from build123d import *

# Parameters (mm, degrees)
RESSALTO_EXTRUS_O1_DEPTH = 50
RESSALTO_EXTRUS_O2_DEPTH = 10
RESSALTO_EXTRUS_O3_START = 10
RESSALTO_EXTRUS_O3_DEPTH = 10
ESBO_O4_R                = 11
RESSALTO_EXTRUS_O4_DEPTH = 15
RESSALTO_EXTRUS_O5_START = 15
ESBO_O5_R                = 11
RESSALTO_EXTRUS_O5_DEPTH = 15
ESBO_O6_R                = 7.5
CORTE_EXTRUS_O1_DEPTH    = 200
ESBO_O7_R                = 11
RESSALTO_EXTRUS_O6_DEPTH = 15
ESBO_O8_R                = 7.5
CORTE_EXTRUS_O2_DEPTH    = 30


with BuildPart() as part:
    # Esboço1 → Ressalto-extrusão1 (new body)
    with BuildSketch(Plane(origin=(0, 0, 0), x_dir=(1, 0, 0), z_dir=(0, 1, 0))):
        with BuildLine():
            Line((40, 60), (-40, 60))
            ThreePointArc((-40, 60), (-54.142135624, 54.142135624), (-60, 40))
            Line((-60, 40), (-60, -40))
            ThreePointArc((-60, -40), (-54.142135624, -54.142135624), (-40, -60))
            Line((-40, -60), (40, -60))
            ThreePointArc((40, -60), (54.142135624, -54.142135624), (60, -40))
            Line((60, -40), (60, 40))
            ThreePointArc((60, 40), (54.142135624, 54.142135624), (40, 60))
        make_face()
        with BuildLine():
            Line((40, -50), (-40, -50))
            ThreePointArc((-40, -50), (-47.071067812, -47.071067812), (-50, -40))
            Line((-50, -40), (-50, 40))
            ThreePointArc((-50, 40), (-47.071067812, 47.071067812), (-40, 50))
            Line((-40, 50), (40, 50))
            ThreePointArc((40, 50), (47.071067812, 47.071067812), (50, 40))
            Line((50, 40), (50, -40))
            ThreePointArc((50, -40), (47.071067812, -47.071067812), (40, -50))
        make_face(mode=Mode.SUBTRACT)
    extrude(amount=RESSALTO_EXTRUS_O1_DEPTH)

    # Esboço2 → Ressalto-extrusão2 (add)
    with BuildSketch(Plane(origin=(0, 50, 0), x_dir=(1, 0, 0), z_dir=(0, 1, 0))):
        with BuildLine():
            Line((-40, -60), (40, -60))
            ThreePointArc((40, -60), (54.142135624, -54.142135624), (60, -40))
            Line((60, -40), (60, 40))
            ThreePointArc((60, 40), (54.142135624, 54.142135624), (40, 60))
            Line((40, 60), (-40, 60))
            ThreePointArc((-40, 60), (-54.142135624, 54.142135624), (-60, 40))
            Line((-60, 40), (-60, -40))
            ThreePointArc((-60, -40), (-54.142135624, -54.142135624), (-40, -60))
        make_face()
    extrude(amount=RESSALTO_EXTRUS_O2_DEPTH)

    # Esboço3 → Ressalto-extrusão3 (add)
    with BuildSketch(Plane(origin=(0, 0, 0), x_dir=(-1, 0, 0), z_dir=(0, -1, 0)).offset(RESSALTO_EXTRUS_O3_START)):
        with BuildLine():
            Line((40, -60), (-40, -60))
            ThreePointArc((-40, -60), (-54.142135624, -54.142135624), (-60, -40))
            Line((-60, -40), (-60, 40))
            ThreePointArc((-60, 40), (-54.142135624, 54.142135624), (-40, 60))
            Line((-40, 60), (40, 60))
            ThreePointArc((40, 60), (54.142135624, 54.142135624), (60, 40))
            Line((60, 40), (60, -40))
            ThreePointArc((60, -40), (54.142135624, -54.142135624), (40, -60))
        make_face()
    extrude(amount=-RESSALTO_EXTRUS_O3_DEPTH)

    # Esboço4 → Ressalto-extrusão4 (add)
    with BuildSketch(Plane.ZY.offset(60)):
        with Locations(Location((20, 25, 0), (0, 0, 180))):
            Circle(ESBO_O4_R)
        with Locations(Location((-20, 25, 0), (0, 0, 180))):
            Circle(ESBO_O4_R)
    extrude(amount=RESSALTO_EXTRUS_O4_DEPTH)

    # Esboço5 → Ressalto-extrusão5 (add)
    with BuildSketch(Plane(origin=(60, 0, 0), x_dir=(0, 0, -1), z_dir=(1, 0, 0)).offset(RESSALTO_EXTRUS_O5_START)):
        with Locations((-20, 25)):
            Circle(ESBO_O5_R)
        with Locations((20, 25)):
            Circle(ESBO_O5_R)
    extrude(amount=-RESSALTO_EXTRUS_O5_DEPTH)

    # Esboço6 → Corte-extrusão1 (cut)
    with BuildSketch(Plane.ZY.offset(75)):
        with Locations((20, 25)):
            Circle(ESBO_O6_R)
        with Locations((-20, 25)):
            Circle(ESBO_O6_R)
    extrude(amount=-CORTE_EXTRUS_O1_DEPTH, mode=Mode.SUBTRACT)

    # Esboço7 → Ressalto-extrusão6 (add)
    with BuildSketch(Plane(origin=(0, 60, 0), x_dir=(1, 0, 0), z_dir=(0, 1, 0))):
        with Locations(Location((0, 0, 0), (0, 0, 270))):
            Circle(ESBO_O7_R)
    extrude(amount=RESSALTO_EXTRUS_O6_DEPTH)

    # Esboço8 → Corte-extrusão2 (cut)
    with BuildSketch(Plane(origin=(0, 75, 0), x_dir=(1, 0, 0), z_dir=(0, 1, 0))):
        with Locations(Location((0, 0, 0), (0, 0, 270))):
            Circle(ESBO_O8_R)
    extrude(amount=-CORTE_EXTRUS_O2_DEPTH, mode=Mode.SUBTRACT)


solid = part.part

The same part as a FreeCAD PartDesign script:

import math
import FreeCAD as App
import Part
import Sketcher
from FreeCAD import Vector

doc = App.newDocument("Part")
params = doc.addObject("Spreadsheet::Sheet", "Params")
for row, (alias, value) in enumerate([
    ("sketch1_radius", "20 mm"),
    ("sketch1_radius2", "10 mm"),
    ("sketch1_width", "80 mm"),
    ("pad1_length", "50 mm"),
    ("sketch2_radius", "20 mm"),
    ("sketch2_width", "80 mm"),
    ("pad2_length", "10 mm"),
    ("sketch3_radius", "20 mm"),
    ("sketch3_width", "80 mm"),
    ("pad3_length", "10 mm"),
    ("sketch4_diameter", "22 mm"),
    ("pad4_length", "15 mm"),
    ("sketch5_diameter", "22 mm"),
    ("pad5_length", "15 mm"),
    ("sketch6_diameter", "15 mm"),
    ("pocket1_length", "200 mm"),
    ("sketch7_diameter", "22 mm"),
    ("pad6_length", "15 mm"),
    ("sketch8_diameter", "15 mm"),
    ("pocket2_length", "30 mm"),
], start=1):
    params.set(f"A{row}", alias)
    params.set(f"B{row}", "=" + value)
    params.setAlias(f"B{row}", alias)

body = doc.addObject("PartDesign::Body", "Body")

# Sketch on XZ plane
sketch1 = body.newObject("Sketcher::SketchObject", "Sketch")
sketch1.AttachmentSupport = (doc.getObject("XZ_Plane"), [""])
sketch1.MapMode = "FlatFace"
sketch1.addGeometry([
    Part.LineSegment(Vector(40, -60, 0), Vector(-40, -60, 0)),  # 0
    Part.ArcOfCircle(Part.Circle(Vector(-40, -40, 0), Vector(0, 0, 1), 20), math.radians(180), math.radians(270)),  # 1
    Part.LineSegment(Vector(-60, -40, 0), Vector(-60, 40, 0)),  # 2
    Part.ArcOfCircle(Part.Circle(Vector(-40, 40, 0), Vector(0, 0, 1), 20), math.radians(90), math.radians(180)),  # 3
    Part.LineSegment(Vector(-40, 60, 0), Vector(40, 60, 0)),  # 4
    Part.ArcOfCircle(Part.Circle(Vector(40, 40, 0), Vector(0, 0, 1), 20), math.radians(0), math.radians(90)),  # 5
    Part.LineSegment(Vector(60, 40, 0), Vector(60, -40, 0)),  # 6
    Part.ArcOfCircle(Part.Circle(Vector(40, -40, 0), Vector(0, 0, 1), 20), math.radians(-90), math.radians(0)),  # 7
    Part.ArcOfCircle(Part.Circle(Vector(40, 40, 0), Vector(0, 0, 1), 10), math.radians(0), math.radians(90)),  # 8
    Part.LineSegment(Vector(40, 50, 0), Vector(-40, 50, 0)),  # 9
    Part.ArcOfCircle(Part.Circle(Vector(-40, 40, 0), Vector(0, 0, 1), 10), math.radians(90), math.radians(180)),  # 10
    Part.LineSegment(Vector(-50, 40, 0), Vector(-50, -40, 0)),  # 11
    Part.ArcOfCircle(Part.Circle(Vector(-40, -40, 0), Vector(0, 0, 1), 10), math.radians(180), math.radians(270)),  # 12
    Part.LineSegment(Vector(-40, -50, 0), Vector(40, -50, 0)),  # 13
    Part.ArcOfCircle(Part.Circle(Vector(40, -40, 0), Vector(0, 0, 1), 10), math.radians(-90), math.radians(0)),  # 14
    Part.LineSegment(Vector(50, -40, 0), Vector(50, 40, 0)),  # 15
], False)
sketch1.addConstraint([
    Sketcher.Constraint("Tangent", 0, 2, 1, 2),
    Sketcher.Constraint("Tangent", 1, 1, 2, 1),
    Sketcher.Constraint("Tangent", 2, 2, 3, 2),
    Sketcher.Constraint("Tangent", 3, 1, 4, 1),
    Sketcher.Constraint("Tangent", 4, 2, 5, 2),
    Sketcher.Constraint("Tangent", 5, 1, 6, 1),
    Sketcher.Constraint("Tangent", 6, 2, 7, 2),
    Sketcher.Constraint("Tangent", 7, 1, 0, 1),
    Sketcher.Constraint("Tangent", 8, 2, 9, 1),
    Sketcher.Constraint("Tangent", 9, 2, 10, 1),
    Sketcher.Constraint("Tangent", 10, 2, 11, 1),
    Sketcher.Constraint("Tangent", 11, 2, 12, 1),
    Sketcher.Constraint("Tangent", 12, 2, 13, 1),
    Sketcher.Constraint("Tangent", 13, 2, 14, 1),
    Sketcher.Constraint("Tangent", 14, 2, 15, 1),
    Sketcher.Constraint("Tangent", 15, 2, 8, 1),
    Sketcher.Constraint("Horizontal", 0),
    Sketcher.Constraint("Vertical", 2),
    Sketcher.Constraint("Horizontal", 4),
    Sketcher.Constraint("Vertical", 6),
    Sketcher.Constraint("Horizontal", 9),
    Sketcher.Constraint("Vertical", 11),
    Sketcher.Constraint("Horizontal", 13),
    Sketcher.Constraint("Vertical", 15),
    Sketcher.Constraint("Coincident", 8, 3, 5, 3),
    Sketcher.Constraint("Coincident", 10, 3, 3, 3),
    Sketcher.Constraint("Coincident", 12, 3, 1, 3),
    Sketcher.Constraint("Equal", 1, 3),
    Sketcher.Constraint("Equal", 3, 5),
    Sketcher.Constraint("Equal", 5, 7),
    Sketcher.Constraint("Equal", 12, 14),
    Sketcher.Constraint("Symmetric", 1, 3, 5, 3, -1, 1),
    Sketcher.Constraint("Equal", 13, 2),
    Sketcher.Constraint("Radius", 1, 20.0),
    Sketcher.Constraint("Radius", 8, 10.0),
    Sketcher.Constraint("DistanceX", 0, 2, 0, 1, 80.0),
])
sketch1.setExpression("Constraints[33]", "Params.sketch1_radius")
sketch1.setExpression("Constraints[34]", "Params.sketch1_radius2")
sketch1.setExpression("Constraints[35]", "Params.sketch1_width")
pad1 = body.newObject("PartDesign::Pad", "Pad")
pad1.Profile = sketch1
pad1.setExpression("Length", "Params.pad1_length")
pad1.Reversed = True

# Sketch on XZ plane
sketch2 = body.newObject("Sketcher::SketchObject", "Sketch001")
sketch2.AttachmentSupport = (doc.getObject("XZ_Plane"), [""])
sketch2.MapMode = "FlatFace"
sketch2.AttachmentOffset = App.Placement(Vector(0, 0, -50), App.Rotation())
sketch2.addGeometry([
    Part.LineSegment(Vector(-40, 60, 0), Vector(40, 60, 0)),  # 0
    Part.ArcOfCircle(Part.Circle(Vector(40, 40, 0), Vector(0, 0, 1), 20), math.radians(0), math.radians(90)),  # 1
    Part.LineSegment(Vector(60, 40, 0), Vector(60, -40, 0)),  # 2
    Part.ArcOfCircle(Part.Circle(Vector(40, -40, 0), Vector(0, 0, 1), 20), math.radians(-90), math.radians(0)),  # 3
    Part.LineSegment(Vector(40, -60, 0), Vector(-40, -60, 0)),  # 4
    Part.ArcOfCircle(Part.Circle(Vector(-40, -40, 0), Vector(0, 0, 1), 20), math.radians(180), math.radians(270)),  # 5
    Part.LineSegment(Vector(-60, -40, 0), Vector(-60, 40, 0)),  # 6
    Part.ArcOfCircle(Part.Circle(Vector(-40, 40, 0), Vector(0, 0, 1), 20), math.radians(90), math.radians(180)),  # 7
], False)
sketch2.addConstraint([
    Sketcher.Constraint("Tangent", 0, 2, 1, 2),
    Sketcher.Constraint("Tangent", 1, 1, 2, 1),
    Sketcher.Constraint("Tangent", 2, 2, 3, 2),
    Sketcher.Constraint("Tangent", 3, 1, 4, 1),
    Sketcher.Constraint("Tangent", 4, 2, 5, 2),
    Sketcher.Constraint("Tangent", 5, 1, 6, 1),
    Sketcher.Constraint("Tangent", 6, 2, 7, 2),
    Sketcher.Constraint("Tangent", 7, 1, 0, 1),
    Sketcher.Constraint("Horizontal", 0),
    Sketcher.Constraint("Vertical", 2),
    Sketcher.Constraint("Horizontal", 4),
    Sketcher.Constraint("Vertical", 6),
    Sketcher.Constraint("Equal", 1, 3),
    Sketcher.Constraint("Equal", 3, 5),
    Sketcher.Constraint("Equal", 5, 7),
    Sketcher.Constraint("Symmetric", 1, 3, 5, 3, -1, 1),
    Sketcher.Constraint("Equal", 4, 2),
    Sketcher.Constraint("Radius", 1, 20.0),
    Sketcher.Constraint("DistanceX", 0, 1, 0, 2, 80.0),
])
sketch2.setExpression("Constraints[17]", "Params.sketch2_radius")
sketch2.setExpression("Constraints[18]", "Params.sketch2_width")
pad2 = body.newObject("PartDesign::Pad", "Pad001")
pad2.Profile = sketch2
pad2.setExpression("Length", "Params.pad2_length")
pad2.Reversed = True

# Sketch on XZ plane
sketch3 = body.newObject("Sketcher::SketchObject", "Sketch002")
sketch3.AttachmentSupport = (doc.getObject("XZ_Plane"), [""])
sketch3.MapMode = "FlatFace"
sketch3.AttachmentOffset = App.Placement(Vector(0, 0, 10), App.Rotation())
sketch3.addGeometry([
    Part.LineSegment(Vector(40, 60, 0), Vector(-40, 60, 0)),  # 0
    Part.ArcOfCircle(Part.Circle(Vector(-40, 40, 0), Vector(0, 0, 1), 20), math.radians(90), math.radians(180)),  # 1
    Part.LineSegment(Vector(-60, 40, 0), Vector(-60, -40, 0)),  # 2
    Part.ArcOfCircle(Part.Circle(Vector(-40, -40, 0), Vector(0, 0, 1), 20), math.radians(180), math.radians(270)),  # 3
    Part.LineSegment(Vector(-40, -60, 0), Vector(40, -60, 0)),  # 4
    Part.ArcOfCircle(Part.Circle(Vector(40, -40, 0), Vector(0, 0, 1), 20), math.radians(-90), math.radians(0)),  # 5
    Part.LineSegment(Vector(60, -40, 0), Vector(60, 40, 0)),  # 6
    Part.ArcOfCircle(Part.Circle(Vector(40, 40, 0), Vector(0, 0, 1), 20), math.radians(0), math.radians(90)),  # 7
], False)
sketch3.addConstraint([
    Sketcher.Constraint("Tangent", 0, 2, 1, 1),
    Sketcher.Constraint("Tangent", 1, 2, 2, 1),
    Sketcher.Constraint("Tangent", 2, 2, 3, 1),
    Sketcher.Constraint("Tangent", 3, 2, 4, 1),
    Sketcher.Constraint("Tangent", 4, 2, 5, 1),
    Sketcher.Constraint("Tangent", 5, 2, 6, 1),
    Sketcher.Constraint("Tangent", 6, 2, 7, 1),
    Sketcher.Constraint("Tangent", 7, 2, 0, 1),
    Sketcher.Constraint("Horizontal", 0),
    Sketcher.Constraint("Vertical", 2),
    Sketcher.Constraint("Horizontal", 4),
    Sketcher.Constraint("Vertical", 6),
    Sketcher.Constraint("Equal", 1, 3),
    Sketcher.Constraint("Equal", 3, 5),
    Sketcher.Constraint("Equal", 5, 7),
    Sketcher.Constraint("Symmetric", 1, 3, 5, 3, -1, 1),
    Sketcher.Constraint("Equal", 4, 2),
    Sketcher.Constraint("Radius", 1, 20.0),
    Sketcher.Constraint("DistanceX", 0, 2, 0, 1, 80.0),
])
sketch3.setExpression("Constraints[17]", "Params.sketch3_radius")
sketch3.setExpression("Constraints[18]", "Params.sketch3_width")
pad3 = body.newObject("PartDesign::Pad", "Pad002")
pad3.Profile = sketch3
pad3.setExpression("Length", "Params.pad3_length")
pad3.Reversed = True

# Sketch on YZ plane
sketch4 = body.newObject("Sketcher::SketchObject", "Sketch003")
sketch4.AttachmentSupport = (doc.getObject("YZ_Plane"), [""])
sketch4.MapMode = "FlatFace"
sketch4.AttachmentOffset = App.Placement(Vector(0, 0, -60), App.Rotation())
sketch4.addGeometry([
    Part.Circle(Vector(25, 20, 0), Vector(0, 0, 1), 11),
    Part.Circle(Vector(25, -20, 0), Vector(0, 0, 1), 11),
], False)
sketch4.addConstraint([
    Sketcher.Constraint("Equal", 0, 1),
    Sketcher.Constraint("Symmetric", 0, 3, 1, 3, -1),
    Sketcher.Constraint("Diameter", 0, 22.0),
    Sketcher.Constraint("DistanceX", -1, 1, 0, 3, 25.0),
    Sketcher.Constraint("DistanceY", -1, 1, 0, 3, 20.0),
])
sketch4.setExpression("Constraints[2]", "Params.sketch4_diameter")
pad4 = body.newObject("PartDesign::Pad", "Pad003")
pad4.Profile = sketch4
pad4.setExpression("Length", "Params.pad4_length")
pad4.Reversed = True

# Sketch on YZ plane
sketch5 = body.newObject("Sketcher::SketchObject", "Sketch004")
sketch5.AttachmentSupport = (doc.getObject("YZ_Plane"), [""])
sketch5.MapMode = "FlatFace"
sketch5.AttachmentOffset = App.Placement(Vector(0, 0, 75), App.Rotation())
sketch5.addGeometry([
    Part.Circle(Vector(25, 20, 0), Vector(0, 0, 1), 11),
    Part.Circle(Vector(25, -20, 0), Vector(0, 0, 1), 11),
], False)
sketch5.addConstraint([
    Sketcher.Constraint("Equal", 0, 1),
    Sketcher.Constraint("Symmetric", 0, 3, 1, 3, -1),
    Sketcher.Constraint("Diameter", 0, 22.0),
    Sketcher.Constraint("DistanceX", -1, 1, 0, 3, 25.0),
    Sketcher.Constraint("DistanceY", -1, 1, 0, 3, 20.0),
])
sketch5.setExpression("Constraints[2]", "Params.sketch5_diameter")
pad5 = body.newObject("PartDesign::Pad", "Pad004")
pad5.Profile = sketch5
pad5.setExpression("Length", "Params.pad5_length")
pad5.Reversed = True

# Sketch on YZ plane
sketch6 = body.newObject("Sketcher::SketchObject", "Sketch005")
sketch6.AttachmentSupport = (doc.getObject("YZ_Plane"), [""])
sketch6.MapMode = "FlatFace"
sketch6.AttachmentOffset = App.Placement(Vector(0, 0, -75), App.Rotation())
sketch6.addGeometry([
    Part.Circle(Vector(25, 20, 0), Vector(0, 0, 1), 7.5),
    Part.Circle(Vector(25, -20, 0), Vector(0, 0, 1), 7.5),
], False)
sketch6.addConstraint([
    Sketcher.Constraint("Equal", 0, 1),
    Sketcher.Constraint("Symmetric", 0, 3, 1, 3, -1),
    Sketcher.Constraint("Diameter", 0, 15.0),
    Sketcher.Constraint("DistanceX", -1, 1, 0, 3, 25.0),
    Sketcher.Constraint("DistanceY", -1, 1, 0, 3, 20.0),
])
sketch6.setExpression("Constraints[2]", "Params.sketch6_diameter")
pocket1 = body.newObject("PartDesign::Pocket", "Pocket")
pocket1.Profile = sketch6
pocket1.setExpression("Length", "Params.pocket1_length")
pocket1.Reversed = True

# Sketch on XZ plane
sketch7 = body.newObject("Sketcher::SketchObject", "Sketch006")
sketch7.AttachmentSupport = (doc.getObject("XZ_Plane"), [""])
sketch7.MapMode = "FlatFace"
sketch7.AttachmentOffset = App.Placement(Vector(0, 0, -60), App.Rotation())
sketch7.addGeometry(Part.Circle(Vector(0, 0, 0), Vector(0, 0, 1), 11), False)
sketch7.addConstraint([
    Sketcher.Constraint("Coincident", 0, 3, -1, 1),
    Sketcher.Constraint("Diameter", 0, 22.0),
])
sketch7.setExpression("Constraints[1]", "Params.sketch7_diameter")
pad6 = body.newObject("PartDesign::Pad", "Pad005")
pad6.Profile = sketch7
pad6.setExpression("Length", "Params.pad6_length")
pad6.Reversed = True

# Sketch on XZ plane
sketch8 = body.newObject("Sketcher::SketchObject", "Sketch007")
sketch8.AttachmentSupport = (doc.getObject("XZ_Plane"), [""])
sketch8.MapMode = "FlatFace"
sketch8.AttachmentOffset = App.Placement(Vector(0, 0, -75), App.Rotation())
sketch8.addGeometry(Part.Circle(Vector(0, 0, 0), Vector(0, 0, 1), 7.5), False)
sketch8.addConstraint([
    Sketcher.Constraint("Coincident", 0, 3, -1, 1),
    Sketcher.Constraint("Diameter", 0, 15.0),
])
sketch8.setExpression("Constraints[1]", "Params.sketch8_diameter")
pocket2 = body.newObject("PartDesign::Pocket", "Pocket001")
pocket2.Profile = sketch8
pocket2.setExpression("Length", "Params.pocket2_length")
pocket2.Reversed = True

doc.recompute()
